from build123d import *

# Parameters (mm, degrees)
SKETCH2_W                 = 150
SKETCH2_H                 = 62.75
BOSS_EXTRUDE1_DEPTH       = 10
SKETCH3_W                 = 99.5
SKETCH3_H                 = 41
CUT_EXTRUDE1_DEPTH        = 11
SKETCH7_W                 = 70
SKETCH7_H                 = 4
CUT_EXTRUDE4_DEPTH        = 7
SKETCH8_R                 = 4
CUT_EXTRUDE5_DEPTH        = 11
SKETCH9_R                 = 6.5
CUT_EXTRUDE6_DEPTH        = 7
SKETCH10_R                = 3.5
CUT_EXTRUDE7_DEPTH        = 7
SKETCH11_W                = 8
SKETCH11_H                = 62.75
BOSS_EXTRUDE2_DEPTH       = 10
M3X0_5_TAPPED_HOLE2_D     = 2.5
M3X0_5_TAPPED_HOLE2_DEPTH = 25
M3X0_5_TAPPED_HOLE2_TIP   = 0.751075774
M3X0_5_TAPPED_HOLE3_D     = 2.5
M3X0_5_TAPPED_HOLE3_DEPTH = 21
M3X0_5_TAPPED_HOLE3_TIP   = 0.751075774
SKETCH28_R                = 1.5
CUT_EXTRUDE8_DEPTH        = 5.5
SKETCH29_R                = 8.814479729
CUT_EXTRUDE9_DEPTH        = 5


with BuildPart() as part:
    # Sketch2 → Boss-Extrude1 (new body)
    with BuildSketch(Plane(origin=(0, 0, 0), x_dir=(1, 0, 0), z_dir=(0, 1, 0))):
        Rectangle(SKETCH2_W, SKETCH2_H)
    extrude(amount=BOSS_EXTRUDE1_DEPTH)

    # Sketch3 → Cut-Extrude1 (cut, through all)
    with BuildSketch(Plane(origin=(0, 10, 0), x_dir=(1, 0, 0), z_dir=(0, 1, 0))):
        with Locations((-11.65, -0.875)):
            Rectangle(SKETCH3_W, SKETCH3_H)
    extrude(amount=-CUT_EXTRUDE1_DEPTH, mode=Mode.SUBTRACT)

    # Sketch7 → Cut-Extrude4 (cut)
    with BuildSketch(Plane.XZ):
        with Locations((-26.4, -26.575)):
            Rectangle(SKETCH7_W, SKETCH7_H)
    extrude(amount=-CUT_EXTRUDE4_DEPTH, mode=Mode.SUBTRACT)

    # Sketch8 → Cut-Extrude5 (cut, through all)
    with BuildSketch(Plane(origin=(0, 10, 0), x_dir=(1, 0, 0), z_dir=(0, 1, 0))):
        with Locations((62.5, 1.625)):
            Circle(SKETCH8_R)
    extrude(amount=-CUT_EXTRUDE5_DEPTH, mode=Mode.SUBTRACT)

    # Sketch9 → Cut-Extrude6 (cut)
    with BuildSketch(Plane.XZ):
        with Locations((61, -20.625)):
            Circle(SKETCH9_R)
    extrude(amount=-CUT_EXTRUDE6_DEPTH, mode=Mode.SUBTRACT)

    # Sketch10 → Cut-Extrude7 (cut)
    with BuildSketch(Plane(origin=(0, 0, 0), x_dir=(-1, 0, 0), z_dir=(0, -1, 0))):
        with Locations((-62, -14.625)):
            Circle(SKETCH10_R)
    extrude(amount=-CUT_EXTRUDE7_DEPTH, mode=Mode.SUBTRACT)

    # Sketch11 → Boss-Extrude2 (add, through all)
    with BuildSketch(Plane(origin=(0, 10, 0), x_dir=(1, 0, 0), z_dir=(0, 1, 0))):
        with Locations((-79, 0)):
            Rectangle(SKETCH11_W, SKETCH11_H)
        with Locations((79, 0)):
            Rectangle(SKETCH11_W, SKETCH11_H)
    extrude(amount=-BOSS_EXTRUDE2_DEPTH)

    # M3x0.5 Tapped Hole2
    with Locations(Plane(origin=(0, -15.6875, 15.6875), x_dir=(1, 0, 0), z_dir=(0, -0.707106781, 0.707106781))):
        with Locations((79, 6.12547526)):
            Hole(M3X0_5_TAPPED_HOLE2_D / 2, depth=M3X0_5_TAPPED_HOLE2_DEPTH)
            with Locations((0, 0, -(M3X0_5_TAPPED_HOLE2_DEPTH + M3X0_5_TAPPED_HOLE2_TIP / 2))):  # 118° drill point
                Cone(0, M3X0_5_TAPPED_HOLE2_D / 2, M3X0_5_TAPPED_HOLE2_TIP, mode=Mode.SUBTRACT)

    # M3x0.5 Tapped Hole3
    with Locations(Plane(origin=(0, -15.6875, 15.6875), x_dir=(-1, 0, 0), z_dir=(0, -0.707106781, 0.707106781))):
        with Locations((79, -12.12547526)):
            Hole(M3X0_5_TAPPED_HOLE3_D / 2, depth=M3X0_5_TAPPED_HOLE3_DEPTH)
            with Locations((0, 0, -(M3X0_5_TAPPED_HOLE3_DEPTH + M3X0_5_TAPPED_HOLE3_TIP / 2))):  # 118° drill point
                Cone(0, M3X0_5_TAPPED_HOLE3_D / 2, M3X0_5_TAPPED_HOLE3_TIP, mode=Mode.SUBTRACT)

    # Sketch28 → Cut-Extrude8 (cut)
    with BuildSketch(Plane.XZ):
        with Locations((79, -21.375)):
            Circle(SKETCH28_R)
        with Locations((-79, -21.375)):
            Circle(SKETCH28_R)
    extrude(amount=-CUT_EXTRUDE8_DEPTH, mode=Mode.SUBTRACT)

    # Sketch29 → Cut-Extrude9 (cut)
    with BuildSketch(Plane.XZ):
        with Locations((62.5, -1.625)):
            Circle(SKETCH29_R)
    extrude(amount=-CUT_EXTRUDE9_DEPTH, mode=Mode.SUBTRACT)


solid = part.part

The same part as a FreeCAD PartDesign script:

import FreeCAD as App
import Part
import Sketcher

doc = App.newDocument("Part")
params = doc.addObject("Spreadsheet::Sheet", "Params")
for row, (alias, value) in enumerate([
    ("sketch1_width", "150 mm"),
    ("sketch1_height", "62.75 mm"),
    ("pad1_length", "10 mm"),
    ("sketch2_height", "41 mm"),
    ("sketch2_width", "99.5 mm"),
    ("sketch3_width", "70 mm"),
    ("sketch3_height", "4 mm"),
    ("pocket2_length", "7 mm"),
    ("sketch4_diameter", "8 mm"),
    ("sketch5_diameter", "13 mm"),
    ("pocket4_length", "7 mm"),
    ("sketch6_diameter", "7 mm"),
    ("pocket5_length", "7 mm"),
    ("sketch7_width", "8 mm"),
    ("sketch7_height", "62.75 mm"),
    ("pad2_length", "10 mm"),
    ("sketch8_diameter", "2.5 mm"),
    ("hole_diameter", "2.5 mm"),
    ("hole_depth", "25 mm"),
    ("sketch9_diameter", "2.5 mm"),
    ("hole2_diameter", "2.5 mm"),
    ("hole2_depth", "21 mm"),
    ("sketch10_diameter", "3 mm"),
    ("pocket6_length", "5.5 mm"),
    ("pocket7_length", "5 mm"),
], start=1):
    params.set(f"A{row}", alias)
    params.set(f"B{row}", "=" + value)
    params.setAlias(f"B{row}", alias)

body = doc.addObject("PartDesign::Body", "Body")

# Sketch on XZ plane
sketch1 = body.newObject("Sketcher::SketchObject", "Sketch")
sketch1.AttachmentSupport = (doc.getObject("XZ_Plane"), [""])
sketch1.MapMode = "FlatFace"
sketch1.addGeometry(Part.LineSegment(App.Vector(-75, -31, 0), App.Vector(-75, 31, 0)), False)
sketch1.addGeometry(Part.LineSegment(App.Vector(-75, 31, 0), App.Vector(75, 31, 0)), False)
sketch1.addGeometry(Part.LineSegment(App.Vector(75, 31, 0), App.Vector(75, -31, 0)), False)
sketch1.addGeometry(Part.LineSegment(App.Vector(75, -31, 0), App.Vector(-75, -31, 0)), False)
sketch1.addConstraint(Sketcher.Constraint("Coincident", 0, 2, 1, 1))
sketch1.addConstraint(Sketcher.Constraint("Coincident", 1, 2, 2, 1))
sketch1.addConstraint(Sketcher.Constraint("Coincident", 2, 2, 3, 1))
sketch1.addConstraint(Sketcher.Constraint("Coincident", 3, 2, 0, 1))
sketch1.addConstraint(Sketcher.Constraint("Vertical", 0))
sketch1.addConstraint(Sketcher.Constraint("Horizontal", 1))
sketch1.addConstraint(Sketcher.Constraint("Vertical", 2))
sketch1.addConstraint(Sketcher.Constraint("Horizontal", 3))
sketch1.addConstraint(Sketcher.Constraint("Symmetric", 0, 2, 2, 2, -1, 1))
sketch1.addConstraint(Sketcher.Constraint("DistanceX", 1, 1, 1, 2, 150.0))
sketch1.addConstraint(Sketcher.Constraint("DistanceY", 0, 1, 0, 2, 62.75))
sketch1.setExpression("Constraints[9]", "Params.sketch1_width")
sketch1.setExpression("Constraints[10]", "Params.sketch1_height")
pad1 = body.newObject("PartDesign::Pad", "Pad")
pad1.Profile = sketch1
pad1.setExpression("Length", "Params.pad1_length")
pad1.Reversed = True

# Sketch on XZ plane
sketch2 = body.newObject("Sketcher::SketchObject", "Sketch001")
sketch2.AttachmentSupport = (doc.getObject("XZ_Plane"), [""])
sketch2.MapMode = "FlatFace"
sketch2.AttachmentOffset = App.Placement(App.Vector(0, 0, -10), App.Rotation())
sketch2.addGeometry(Part.LineSegment(App.Vector(-61, -20, 0), App.Vector(-61, 21, 0)), False)
sketch2.addGeometry(Part.LineSegment(App.Vector(-61, 21, 0), App.Vector(38, 21, 0)), False)
sketch2.addGeometry(Part.LineSegment(App.Vector(38, 21, 0), App.Vector(38, -20, 0)), False)
sketch2.addGeometry(Part.LineSegment(App.Vector(38, -20, 0), App.Vector(-61, -20, 0)), False)
sketch2.addConstraint(Sketcher.Constraint("Coincident", 0, 2, 1, 1))
sketch2.addConstraint(Sketcher.Constraint("Coincident", 1, 2, 2, 1))
sketch2.addConstraint(Sketcher.Constraint("Coincident", 2, 2, 3, 1))
sketch2.addConstraint(Sketcher.Constraint("Coincident", 3, 2, 0, 1))
sketch2.addConstraint(Sketcher.Constraint("Vertical", 0))
sketch2.addConstraint(Sketcher.Constraint("Horizontal", 1))
sketch2.addConstraint(Sketcher.Constraint("Vertical", 2))
sketch2.addConstraint(Sketcher.Constraint("Horizontal", 3))
sketch2.addConstraint(Sketcher.Constraint("DistanceY", 0, 1, 0, 2, 41.0))
sketch2.addConstraint(Sketcher.Constraint("DistanceX", 1, 1, 1, 2, 99.5))
sketch2.addConstraint(Sketcher.Constraint("DistanceX", 0, 2, -1, 1, 61.4))
sketch2.addConstraint(Sketcher.Constraint("DistanceY", -1, 1, 0, 2, 21.375))
sketch2.setExpression("Constraints[8]", "Params.sketch2_height")
sketch2.setExpression("Constraints[9]", "Params.sketch2_width")
pocket1 = body.newObject("PartDesign::Pocket", "Pocket")
pocket1.Profile = sketch2
pocket1.Type = "ThroughAll"
pocket1.Reversed = True

# Sketch on XZ plane
sketch3 = body.newObject("Sketcher::SketchObject", "Sketch002")
sketch3.AttachmentSupport = (doc.getObject("XZ_Plane"), [""])
sketch3.MapMode = "FlatFace"
sketch3.addGeometry(Part.LineSegment(App.Vector(-61.4, -24.6, 0), App.Vector(-61.4, -28.6, 0)), False)
sketch3.addGeometry(Part.LineSegment(App.Vector(-61.4, -28.6, 0), App.Vector(8.6, -28.6, 0)), False)
sketch3.addGeometry(Part.LineSegment(App.Vector(8.6, -28.6, 0), App.Vector(8.6, -24.6, 0)), False)
sketch3.addGeometry(Part.LineSegment(App.Vector(8.6, -24.6, 0), App.Vector(-61.4, -24.6, 0)), False)
sketch3.addConstraint(Sketcher.Constraint("Coincident", 0, 2, 1, 1))
sketch3.addConstraint(Sketcher.Constraint("Coincident", 1, 2, 2, 1))
sketch3.addConstraint(Sketcher.Constraint("Coincident", 2, 2, 3, 1))
sketch3.addConstraint(Sketcher.Constraint("Coincident", 3, 2, 0, 1))
sketch3.addConstraint(Sketcher.Constraint("Vertical", 0))
sketch3.addConstraint(Sketcher.Constraint("Horizontal", 1))
sketch3.addConstraint(Sketcher.Constraint("Vertical", 2))
sketch3.addConstraint(Sketcher.Constraint("Horizontal", 3))
sketch3.addConstraint(Sketcher.Constraint("DistanceX", 1, 1, 1, 2, 70.0))
sketch3.addConstraint(Sketcher.Constraint("DistanceY", 0, 2, 0, 1, 4.0))
sketch3.addConstraint(Sketcher.Constraint("DistanceX", 0, 2, -1, 1, 61.4))
sketch3.addConstraint(Sketcher.Constraint("DistanceY", 0, 2, -1, 1, 28.575))
sketch3.setExpression("Constraints[8]", "Params.sketch3_width")
sketch3.setExpression("Constraints[9]", "Params.sketch3_height")
pocket2 = body.newObject("PartDesign::Pocket", "Pocket001")
pocket2.Profile = sketch3
pocket2.setExpression("Length", "Params.pocket2_length")

# Sketch on XZ plane
sketch4 = body.newObject("Sketcher::SketchObject", "Sketch003")
sketch4.AttachmentSupport = (doc.getObject("XZ_Plane"), [""])
sketch4.MapMode = "FlatFace"
sketch4.AttachmentOffset = App.Placement(App.Vector(0, 0, -10), App.Rotation())
sketch4.addGeometry(Part.Circle(App.Vector(62.5, -1.6, 0), App.Vector(0, 0, 1), 4), False)
sketch4.addConstraint(Sketcher.Constraint("Diameter", 0, 8.0))
sketch4.addConstraint(Sketcher.Constraint("DistanceX", -1, 1, 0, 3, 62.5))
sketch4.addConstraint(Sketcher.Constraint("DistanceY", 0, 3, -1, 1, 1.625))
sketch4.setExpression("Constraints[0]", "Params.sketch4_diameter")
pocket3 = body.newObject("PartDesign::Pocket", "Pocket002")
pocket3.Profile = sketch4
pocket3.Type = "ThroughAll"
pocket3.Reversed = True

# Sketch on XZ plane
sketch5 = body.newObject("Sketcher::SketchObject", "Sketch004")
sketch5.AttachmentSupport = (doc.getObject("XZ_Plane"), [""])
sketch5.MapMode = "FlatFace"
sketch5.addGeometry(Part.Circle(App.Vector(61, -21, 0), App.Vector(0, 0, 1), 6), False)
sketch5.addConstraint(Sketcher.Constraint("Diameter", 0, 13.0))
sketch5.addConstraint(Sketcher.Constraint("DistanceX", -1, 1, 0, 3, 61.0))
sketch5.addConstraint(Sketcher.Constraint("DistanceY", 0, 3, -1, 1, 20.625))
sketch5.setExpression("Constraints[0]", "Params.sketch5_diameter")
pocket4 = body.newObject("PartDesign::Pocket", "Pocket003")
pocket4.Profile = sketch5
pocket4.setExpression("Length", "Params.pocket4_length")

# Sketch on XZ plane
sketch6 = body.newObject("Sketcher::SketchObject", "Sketch005")
sketch6.AttachmentSupport = (doc.getObject("XZ_Plane"), [""])
sketch6.MapMode = "FlatFace"
sketch6.addGeometry(Part.Circle(App.Vector(62, 14.6, 0), App.Vector(0, 0, 1), 3.5), False)
sketch6.addConstraint(Sketcher.Constraint("Diameter", 0, 7.0))
sketch6.addConstraint(Sketcher.Constraint("DistanceX", -1, 1, 0, 3, 62.0))
sketch6.addConstraint(Sketcher.Constraint("DistanceY", -1, 1, 0, 3, 14.625))
sketch6.setExpression("Constraints[0]", "Params.sketch6_diameter")
pocket5 = body.newObject("PartDesign::Pocket", "Pocket004")
pocket5.Profile = sketch6
pocket5.setExpression("Length", "Params.pocket5_length")

# Sketch on XZ plane
sketch7 = body.newObject("Sketcher::SketchObject", "Sketch006")
sketch7.AttachmentSupport = (doc.getObject("XZ_Plane"), [""])
sketch7.MapMode = "FlatFace"
sketch7.AttachmentOffset = App.Placement(App.Vector(0, 0, -10), App.Rotation())
sketch7.addGeometry(Part.LineSegment(App.Vector(-83, -31, 0), App.Vector(-83, 31, 0)), False)
sketch7.addGeometry(Part.LineSegment(App.Vector(-83, 31, 0), App.Vector(-75, 31, 0)), False)
sketch7.addGeometry(Part.LineSegment(App.Vector(-75, 31, 0), App.Vector(-75, -31, 0)), False)
sketch7.addGeometry(Part.LineSegment(App.Vector(-75, -31, 0), App.Vector(-83, -31, 0)), False)
sketch7.addGeometry(Part.LineSegment(App.Vector(75, -31, 0), App.Vector(75, 31, 0)), False)
sketch7.addGeometry(Part.LineSegment(App.Vector(75, 31, 0), App.Vector(83, 31, 0)), False)
sketch7.addGeometry(Part.LineSegment(App.Vector(83, 31, 0), App.Vector(83, -31, 0)), False)
sketch7.addGeometry(Part.LineSegment(App.Vector(83, -31, 0), App.Vector(75, -31, 0)), False)
sketch7.addConstraint(Sketcher.Constraint("Coincident", 0, 2, 1, 1))
sketch7.addConstraint(Sketcher.Constraint("Coincident", 1, 2, 2, 1))
sketch7.addConstraint(Sketcher.Constraint("Coincident", 2, 2, 3, 1))
sketch7.addConstraint(Sketcher.Constraint("Coincident", 3, 2, 0, 1))
sketch7.addConstraint(Sketcher.Constraint("Coincident", 4, 2, 5, 1))
sketch7.addConstraint(Sketcher.Constraint("Coincident", 5, 2, 6, 1))
sketch7.addConstraint(Sketcher.Constraint("Coincident", 6, 2, 7, 1))
sketch7.addConstraint(Sketcher.Constraint("Coincident", 7, 2, 4, 1))
sketch7.addConstraint(Sketcher.Constraint("Vertical", 0))
sketch7.addConstraint(Sketcher.Constraint("Horizontal", 1))
sketch7.addConstraint(Sketcher.Constraint("Vertical", 2))
sketch7.addConstraint(Sketcher.Constraint("Horizontal", 3))
sketch7.addConstraint(Sketcher.Constraint("Vertical", 4))
sketch7.addConstraint(Sketcher.Constraint("Horizontal", 5))
sketch7.addConstraint(Sketcher.Constraint("Vertical", 6))
sketch7.addConstraint(Sketcher.Constraint("Horizontal", 7))
sketch7.addConstraint(Sketcher.Constraint("Symmetric", 2, 2, 4, 2, -1, 1))
sketch7.addConstraint(Sketcher.Constraint("Symmetric", 0, 2, 6, 2, -1, 1))
sketch7.addConstraint(Sketcher.Constraint("Horizontal", 1, 2, 4, 2))
sketch7.addConstraint(Sketcher.Constraint("DistanceX", 1, 1, 1, 2, 8.0))
sketch7.addConstraint(Sketcher.Constraint("DistanceX", 0, 2, -1, 1, 83.0))
sketch7.addConstraint(Sketcher.Constraint("DistanceY", 0, 1, 0, 2, 62.75))
sketch7.setExpression("Constraints[19]", "Params.sketch7_width")
sketch7.setExpression("Constraints[21]", "Params.sketch7_height")
pad2 = body.newObject("PartDesign::Pad", "Pad001")
pad2.Profile = sketch7
pad2.setExpression("Length", "Params.pad2_length")

# Sketch on an angled plane
sketch8 = body.newObject("Sketcher::SketchObject", "Sketch007")
sketch8.Placement = App.Placement(App.Vector(0, -15.6875, 15.6875), App.Rotation(App.Vector(1, 0, 0), App.Vector(0, 0.707106781, 0.707106781), App.Vector(0, -0.707106781, 0.707106781), "ZXY"))
sketch8.addGeometry(Part.Circle(App.Vector(79, 6.1, 0), App.Vector(0, 0, 1), 1.2), False)
sketch8.addConstraint(Sketcher.Constraint("Diameter", 0, 2.5))
sketch8.addConstraint(Sketcher.Constraint("DistanceX", -1, 1, 0, 3, 79.0))
sketch8.addConstraint(Sketcher.Constraint("DistanceY", -1, 1, 0, 3, 6.125475))
sketch8.setExpression("Constraints[0]", "Params.sketch8_diameter")
doc.recompute()
hole = body.newObject("PartDesign::Hole", "Hole")
hole.Profile = sketch8
hole.ThreadType = "None"
hole.setExpression("Diameter", "Params.hole_diameter")
hole.DepthType = "Dimension"
hole.setExpression("Depth", "Params.hole_depth")
hole.DrillPoint = "Angled"
hole.DrillPointAngle = 118

# Sketch on an angled plane
sketch9 = body.newObject("Sketcher::SketchObject", "Sketch008")
sketch9.Placement = App.Placement(App.Vector(0, -15.6875, 15.6875), App.Rotation(App.Vector(-1, 0, 0), App.Vector(0, -0.707106781, -0.707106781), App.Vector(0, -0.707106781, 0.707106781), "ZXY"))
sketch9.addGeometry(Part.Circle(App.Vector(79, -12.1, 0), App.Vector(0, 0, 1), 1.2), False)
sketch9.addConstraint(Sketcher.Constraint("Diameter", 0, 2.5))
sketch9.addConstraint(Sketcher.Constraint("DistanceX", -1, 1, 0, 3, 79.0))
sketch9.addConstraint(Sketcher.Constraint("DistanceY", 0, 3, -1, 1, 12.125475))
sketch9.setExpression("Constraints[0]", "Params.sketch9_diameter")
doc.recompute()
hole2 = body.newObject("PartDesign::Hole", "Hole001")
hole2.Profile = sketch9
hole2.ThreadType = "None"
hole2.setExpression("Diameter", "Params.hole2_diameter")
hole2.DepthType = "Dimension"
hole2.setExpression("Depth", "Params.hole2_depth")
hole2.DrillPoint = "Angled"
hole2.DrillPointAngle = 118

# Sketch on XZ plane
sketch10 = body.newObject("Sketcher::SketchObject", "Sketch009")
sketch10.AttachmentSupport = (doc.getObject("XZ_Plane"), [""])
sketch10.MapMode = "FlatFace"
sketch10.addGeometry(Part.Circle(App.Vector(79, -21.4, 0), App.Vector(0, 0, 1), 1.5), False)
sketch10.addGeometry(Part.Circle(App.Vector(-79, -21.4, 0), App.Vector(0, 0, 1), 1.5), False)
sketch10.addConstraint(Sketcher.Constraint("Equal", 0, 1))
sketch10.addConstraint(Sketcher.Constraint("Symmetric", 0, 3, 1, 3, -2))
sketch10.addConstraint(Sketcher.Constraint("Diameter", 0, 3.0))
sketch10.addConstraint(Sketcher.Constraint("DistanceX", -1, 1, 0, 3, 79.0))
sketch10.addConstraint(Sketcher.Constraint("DistanceY", 0, 3, -1, 1, 21.375))
sketch10.setExpression("Constraints[2]", "Params.sketch10_diameter")
pocket6 = body.newObject("PartDesign::Pocket", "Pocket005")
pocket6.Profile = sketch10
pocket6.setExpression("Length", "Params.pocket6_length")

# Sketch on XZ plane
sketch11 = body.newObject("Sketcher::SketchObject", "Sketch010")
sketch11.AttachmentSupport = (doc.getObject("XZ_Plane"), [""])
sketch11.MapMode = "FlatFace"
sketch11.addGeometry(Part.Circle(App.Vector(62, -2, 0), App.Vector(0, 0, 1), 9), False)
sketch11.addConstraint(Sketcher.Constraint("DistanceX", -1, 1, 0, 3, 62.5))
sketch11.addConstraint(Sketcher.Constraint("Diameter", 0, 17.628959))
sketch11.addConstraint(Sketcher.Constraint("DistanceY", 0, 3, -1, 1, 1.625))
pocket7 = body.newObject("PartDesign::Pocket", "Pocket006")
pocket7.Profile = sketch11
pocket7.setExpression("Length", "Params.pocket7_length")

doc.recompute()
